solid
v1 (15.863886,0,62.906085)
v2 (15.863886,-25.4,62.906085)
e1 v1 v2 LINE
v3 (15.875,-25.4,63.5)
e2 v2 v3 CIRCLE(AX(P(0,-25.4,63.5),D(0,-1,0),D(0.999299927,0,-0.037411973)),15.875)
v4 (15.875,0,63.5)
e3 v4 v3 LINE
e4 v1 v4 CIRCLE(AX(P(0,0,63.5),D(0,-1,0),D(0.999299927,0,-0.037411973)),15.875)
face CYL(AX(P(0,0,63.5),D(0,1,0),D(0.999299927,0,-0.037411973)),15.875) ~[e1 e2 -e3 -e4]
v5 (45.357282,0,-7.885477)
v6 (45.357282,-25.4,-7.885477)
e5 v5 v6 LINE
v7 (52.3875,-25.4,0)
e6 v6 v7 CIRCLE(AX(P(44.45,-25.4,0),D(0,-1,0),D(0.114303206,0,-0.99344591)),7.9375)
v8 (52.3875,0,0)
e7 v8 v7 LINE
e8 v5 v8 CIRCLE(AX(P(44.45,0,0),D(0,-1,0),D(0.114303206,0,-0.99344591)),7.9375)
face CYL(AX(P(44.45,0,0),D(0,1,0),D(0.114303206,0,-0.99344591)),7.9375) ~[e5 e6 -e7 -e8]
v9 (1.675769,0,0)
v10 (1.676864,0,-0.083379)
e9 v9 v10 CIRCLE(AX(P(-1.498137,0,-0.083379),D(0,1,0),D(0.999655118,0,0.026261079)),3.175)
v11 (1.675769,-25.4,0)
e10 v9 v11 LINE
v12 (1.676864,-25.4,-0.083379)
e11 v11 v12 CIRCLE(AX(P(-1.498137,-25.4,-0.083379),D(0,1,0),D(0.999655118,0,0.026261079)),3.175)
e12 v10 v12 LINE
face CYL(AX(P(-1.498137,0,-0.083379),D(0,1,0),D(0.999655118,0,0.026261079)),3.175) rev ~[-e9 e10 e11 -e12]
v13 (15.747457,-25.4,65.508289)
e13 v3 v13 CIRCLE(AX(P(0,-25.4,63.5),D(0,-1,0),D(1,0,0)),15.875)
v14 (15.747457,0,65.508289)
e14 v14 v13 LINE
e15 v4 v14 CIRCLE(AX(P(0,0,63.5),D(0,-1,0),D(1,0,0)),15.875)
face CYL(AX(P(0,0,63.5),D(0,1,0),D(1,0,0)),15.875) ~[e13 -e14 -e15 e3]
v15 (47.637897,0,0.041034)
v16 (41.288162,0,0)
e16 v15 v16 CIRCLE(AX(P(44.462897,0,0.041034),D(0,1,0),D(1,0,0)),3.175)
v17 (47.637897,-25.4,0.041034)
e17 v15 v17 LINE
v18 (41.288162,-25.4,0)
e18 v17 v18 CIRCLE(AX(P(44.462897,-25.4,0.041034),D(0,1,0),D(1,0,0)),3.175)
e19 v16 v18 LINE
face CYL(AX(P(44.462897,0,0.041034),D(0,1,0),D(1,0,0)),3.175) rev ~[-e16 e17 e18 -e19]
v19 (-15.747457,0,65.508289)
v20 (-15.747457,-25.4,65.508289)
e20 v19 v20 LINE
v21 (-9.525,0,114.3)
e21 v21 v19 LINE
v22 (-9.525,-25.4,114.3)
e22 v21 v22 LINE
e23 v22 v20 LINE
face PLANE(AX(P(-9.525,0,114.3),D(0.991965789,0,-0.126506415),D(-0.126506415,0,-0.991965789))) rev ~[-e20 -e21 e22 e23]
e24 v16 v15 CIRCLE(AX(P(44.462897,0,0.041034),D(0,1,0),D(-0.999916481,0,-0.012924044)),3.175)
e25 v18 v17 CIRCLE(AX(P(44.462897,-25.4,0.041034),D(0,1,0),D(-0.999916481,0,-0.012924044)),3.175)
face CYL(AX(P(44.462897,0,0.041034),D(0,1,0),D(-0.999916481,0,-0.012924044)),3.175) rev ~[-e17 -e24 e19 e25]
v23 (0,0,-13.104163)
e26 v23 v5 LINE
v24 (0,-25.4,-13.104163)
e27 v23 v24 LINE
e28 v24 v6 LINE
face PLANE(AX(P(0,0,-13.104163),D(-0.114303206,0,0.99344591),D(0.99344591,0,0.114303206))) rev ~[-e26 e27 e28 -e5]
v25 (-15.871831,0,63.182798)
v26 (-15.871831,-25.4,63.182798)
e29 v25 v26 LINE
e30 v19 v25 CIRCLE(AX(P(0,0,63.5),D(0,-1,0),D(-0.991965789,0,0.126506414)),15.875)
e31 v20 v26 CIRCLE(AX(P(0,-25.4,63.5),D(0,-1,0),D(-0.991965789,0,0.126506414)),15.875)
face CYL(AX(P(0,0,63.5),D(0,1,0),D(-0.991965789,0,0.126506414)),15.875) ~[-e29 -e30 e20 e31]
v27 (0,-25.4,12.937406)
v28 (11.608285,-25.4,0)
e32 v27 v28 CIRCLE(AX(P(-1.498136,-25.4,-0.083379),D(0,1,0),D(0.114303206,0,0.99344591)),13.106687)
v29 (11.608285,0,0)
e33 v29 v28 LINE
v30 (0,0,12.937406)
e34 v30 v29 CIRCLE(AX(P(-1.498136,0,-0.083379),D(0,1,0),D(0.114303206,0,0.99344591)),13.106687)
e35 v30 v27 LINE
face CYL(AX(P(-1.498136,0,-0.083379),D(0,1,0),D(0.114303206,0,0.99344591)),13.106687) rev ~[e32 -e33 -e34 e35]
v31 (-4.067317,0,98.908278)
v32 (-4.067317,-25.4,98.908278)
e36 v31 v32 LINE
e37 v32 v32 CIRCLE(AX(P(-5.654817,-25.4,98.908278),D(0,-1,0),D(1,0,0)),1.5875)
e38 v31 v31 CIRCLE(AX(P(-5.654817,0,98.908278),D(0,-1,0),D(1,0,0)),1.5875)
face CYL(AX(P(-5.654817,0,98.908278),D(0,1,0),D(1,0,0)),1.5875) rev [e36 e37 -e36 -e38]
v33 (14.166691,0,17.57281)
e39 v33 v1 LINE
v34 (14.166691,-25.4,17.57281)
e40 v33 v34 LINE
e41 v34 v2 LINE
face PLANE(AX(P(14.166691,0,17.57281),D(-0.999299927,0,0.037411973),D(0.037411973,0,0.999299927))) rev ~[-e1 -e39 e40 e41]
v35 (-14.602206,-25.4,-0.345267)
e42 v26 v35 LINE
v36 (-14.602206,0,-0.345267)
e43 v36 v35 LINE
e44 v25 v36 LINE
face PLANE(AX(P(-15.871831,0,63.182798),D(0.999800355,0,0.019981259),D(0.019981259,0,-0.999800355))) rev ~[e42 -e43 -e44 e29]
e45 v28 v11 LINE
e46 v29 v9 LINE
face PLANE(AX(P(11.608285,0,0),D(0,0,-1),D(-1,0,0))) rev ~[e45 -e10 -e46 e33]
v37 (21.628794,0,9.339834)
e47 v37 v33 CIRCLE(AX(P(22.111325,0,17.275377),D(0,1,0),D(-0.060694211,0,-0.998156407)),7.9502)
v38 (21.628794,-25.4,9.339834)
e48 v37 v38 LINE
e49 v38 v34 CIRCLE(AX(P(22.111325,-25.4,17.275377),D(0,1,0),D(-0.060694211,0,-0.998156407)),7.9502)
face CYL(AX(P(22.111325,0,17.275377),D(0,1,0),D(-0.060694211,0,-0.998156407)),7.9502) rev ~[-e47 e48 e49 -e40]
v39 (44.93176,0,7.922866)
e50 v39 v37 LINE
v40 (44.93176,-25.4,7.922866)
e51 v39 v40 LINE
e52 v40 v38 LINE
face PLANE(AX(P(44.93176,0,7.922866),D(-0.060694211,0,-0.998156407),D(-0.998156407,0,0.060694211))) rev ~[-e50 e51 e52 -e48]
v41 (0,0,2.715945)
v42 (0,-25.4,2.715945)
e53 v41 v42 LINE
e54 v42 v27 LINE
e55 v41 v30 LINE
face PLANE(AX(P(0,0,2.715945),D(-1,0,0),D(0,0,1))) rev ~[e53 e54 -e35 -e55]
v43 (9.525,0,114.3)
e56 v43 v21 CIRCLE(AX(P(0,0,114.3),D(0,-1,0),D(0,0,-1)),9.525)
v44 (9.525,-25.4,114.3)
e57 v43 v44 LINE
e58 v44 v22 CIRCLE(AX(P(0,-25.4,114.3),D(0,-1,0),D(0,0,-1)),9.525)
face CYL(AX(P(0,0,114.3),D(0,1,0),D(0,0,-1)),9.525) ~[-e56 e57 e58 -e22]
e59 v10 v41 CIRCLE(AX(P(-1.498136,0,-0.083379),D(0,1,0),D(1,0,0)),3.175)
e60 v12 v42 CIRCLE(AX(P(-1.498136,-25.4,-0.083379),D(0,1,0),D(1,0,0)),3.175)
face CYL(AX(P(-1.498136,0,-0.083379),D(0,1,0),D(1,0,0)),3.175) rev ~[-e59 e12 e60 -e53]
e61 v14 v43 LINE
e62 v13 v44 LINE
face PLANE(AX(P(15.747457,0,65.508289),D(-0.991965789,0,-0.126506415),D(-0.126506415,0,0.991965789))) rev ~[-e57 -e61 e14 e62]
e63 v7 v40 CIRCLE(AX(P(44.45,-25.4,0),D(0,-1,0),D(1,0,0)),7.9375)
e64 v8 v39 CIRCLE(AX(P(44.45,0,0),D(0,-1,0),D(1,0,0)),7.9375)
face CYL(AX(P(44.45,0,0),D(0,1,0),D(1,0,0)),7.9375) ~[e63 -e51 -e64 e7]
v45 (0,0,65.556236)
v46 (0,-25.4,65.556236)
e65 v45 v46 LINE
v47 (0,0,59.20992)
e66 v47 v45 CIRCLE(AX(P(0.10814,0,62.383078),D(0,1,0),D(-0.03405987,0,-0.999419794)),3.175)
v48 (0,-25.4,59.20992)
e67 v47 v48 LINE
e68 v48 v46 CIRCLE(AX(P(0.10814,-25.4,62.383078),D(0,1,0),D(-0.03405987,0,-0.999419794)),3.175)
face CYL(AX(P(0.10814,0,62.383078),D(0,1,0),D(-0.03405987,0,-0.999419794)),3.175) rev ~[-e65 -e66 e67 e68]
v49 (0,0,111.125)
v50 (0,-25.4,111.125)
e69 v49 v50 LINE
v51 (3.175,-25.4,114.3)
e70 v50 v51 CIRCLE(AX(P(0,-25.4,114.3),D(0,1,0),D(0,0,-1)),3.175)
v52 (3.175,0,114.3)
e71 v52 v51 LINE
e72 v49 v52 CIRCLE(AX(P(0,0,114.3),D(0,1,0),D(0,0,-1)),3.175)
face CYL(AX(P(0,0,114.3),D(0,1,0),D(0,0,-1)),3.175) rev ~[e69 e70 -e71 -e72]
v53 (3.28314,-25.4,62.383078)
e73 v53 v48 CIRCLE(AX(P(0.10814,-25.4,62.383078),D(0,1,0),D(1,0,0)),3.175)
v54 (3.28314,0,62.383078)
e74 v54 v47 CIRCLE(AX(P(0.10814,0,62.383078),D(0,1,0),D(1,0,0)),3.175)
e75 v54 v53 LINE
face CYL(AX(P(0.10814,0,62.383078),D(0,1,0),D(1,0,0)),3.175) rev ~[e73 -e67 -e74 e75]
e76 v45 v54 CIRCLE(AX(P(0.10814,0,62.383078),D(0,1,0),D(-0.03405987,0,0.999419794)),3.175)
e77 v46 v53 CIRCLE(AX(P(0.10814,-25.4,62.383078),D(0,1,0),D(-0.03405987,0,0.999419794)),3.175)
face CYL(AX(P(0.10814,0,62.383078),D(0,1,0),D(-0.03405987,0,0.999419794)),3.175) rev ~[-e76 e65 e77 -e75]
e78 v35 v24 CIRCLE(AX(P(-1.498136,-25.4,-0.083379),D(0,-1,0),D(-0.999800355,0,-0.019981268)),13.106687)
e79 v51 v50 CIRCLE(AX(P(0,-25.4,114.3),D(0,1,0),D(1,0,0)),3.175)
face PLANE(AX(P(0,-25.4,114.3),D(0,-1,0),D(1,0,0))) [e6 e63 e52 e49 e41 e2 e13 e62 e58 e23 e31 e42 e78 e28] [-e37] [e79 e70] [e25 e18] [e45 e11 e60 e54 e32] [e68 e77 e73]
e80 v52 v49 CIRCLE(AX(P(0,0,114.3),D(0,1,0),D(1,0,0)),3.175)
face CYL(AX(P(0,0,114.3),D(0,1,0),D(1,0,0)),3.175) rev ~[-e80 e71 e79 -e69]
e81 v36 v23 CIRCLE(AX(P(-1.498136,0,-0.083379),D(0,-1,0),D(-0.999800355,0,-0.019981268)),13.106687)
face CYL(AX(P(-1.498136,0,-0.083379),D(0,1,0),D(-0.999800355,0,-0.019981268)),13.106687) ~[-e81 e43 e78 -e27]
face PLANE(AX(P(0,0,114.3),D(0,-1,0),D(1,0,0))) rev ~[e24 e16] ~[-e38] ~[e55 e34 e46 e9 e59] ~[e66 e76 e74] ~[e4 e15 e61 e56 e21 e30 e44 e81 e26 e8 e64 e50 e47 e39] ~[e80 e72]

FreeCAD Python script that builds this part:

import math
import FreeCAD as App
import Part
import Sketcher
Q = App.Units.Quantity

doc = App.newDocument("Part")
body = doc.addObject("PartDesign::Body", "Body")

# Sketch on XZ plane
sketch1 = body.newObject("Sketcher::SketchObject", "Sketch")
sketch1.AttachmentSupport = (doc.getObject("XZ_Plane"), [""])
sketch1.MapMode = "FlatFace"
sketch1.addGeometry([
    Part.ArcOfCircle(Part.Circle(App.Vector(-1.5, -0.08, 0), App.Vector(0, 0, 1), 13.11), math.radians(-179), math.radians(-83)),  # 0
    Part.LineSegment(App.Vector(0, -13.1, 0), App.Vector(45.36, -7.89, 0)),  # 1
    Part.ArcOfCircle(Part.Circle(App.Vector(44.45, 0, 0), App.Vector(0, 0, 1), 7.94), math.radians(-83), math.radians(0)),  # 2
    Part.ArcOfCircle(Part.Circle(App.Vector(44.45, 0, 0), App.Vector(0, 0, 1), 7.94), math.radians(0), math.radians(87)),  # 3
    Part.LineSegment(App.Vector(44.93, 7.92, 0), App.Vector(21.63, 9.34, 0)),  # 4
    Part.ArcOfCircle(Part.Circle(App.Vector(22.11, 17.28, 0), App.Vector(0, 0, 1), 7.95), math.radians(178), math.radians(267)),  # 5
    Part.LineSegment(App.Vector(14.17, 17.57, 0), App.Vector(15.86, 62.91, 0)),  # 6
    Part.ArcOfCircle(Part.Circle(App.Vector(0, 63.5, 0), App.Vector(0, 0, 1), 15.87), math.radians(-2.14), math.radians(0)),  # 7
    Part.ArcOfCircle(Part.Circle(App.Vector(0, 63.5, 0), App.Vector(0, 0, 1), 15.87), math.radians(0), math.radians(7.27)),  # 8
    Part.LineSegment(App.Vector(15.75, 65.51, 0), App.Vector(9.53, 114.3, 0)),  # 9
    Part.ArcOfCircle(Part.Circle(App.Vector(0, 114.3, 0), App.Vector(0, 0, 1), 9.53), math.radians(0), math.radians(180)),  # 10
    Part.LineSegment(App.Vector(-9.53, 114.3, 0), App.Vector(-15.75, 65.51, 0)),  # 11
    Part.ArcOfCircle(Part.Circle(App.Vector(0, 63.5, 0), App.Vector(0, 0, 1), 15.88), math.radians(172.73), math.radians(181.14)),  # 12
    Part.LineSegment(App.Vector(-15.87, 63.18, 0), App.Vector(-14.6, -0.35, 0)),  # 13
    Part.ArcOfCircle(Part.Circle(App.Vector(-1.5, -0.08, 0), App.Vector(0, 0, 1), 13.11), math.radians(0), math.radians(83)),  # 14
    Part.LineSegment(App.Vector(11.61, 0, 0), App.Vector(1.68, 0, 0)),  # 15
    Part.ArcOfCircle(Part.Circle(App.Vector(-1.5, -0.08, 0), App.Vector(0, 0, 1), 3.18), math.radians(0), math.radians(1.5)),  # 16
    Part.ArcOfCircle(Part.Circle(App.Vector(-1.5, -0.08, 0), App.Vector(0, 0, 1), 3.17), math.radians(62), math.radians(360)),  # 17
    Part.LineSegment(App.Vector(0, 2.72, 0), App.Vector(0, 12.94, 0)),  # 18
    Part.ArcOfCircle(Part.Circle(App.Vector(44.46, 0.04, 0), App.Vector(0, 0, 1), 3.17), math.radians(0), math.radians(181)),  # 19
    Part.ArcOfCircle(Part.Circle(App.Vector(44.46, 0.04, 0), App.Vector(0, 0, 1), 3.17), math.radians(-179), math.radians(0)),  # 20
    Part.ArcOfCircle(Part.Circle(App.Vector(0.11, 62.38, 0), App.Vector(0, 0, 1), 3.17), math.radians(0), math.radians(92)),  # 21
    Part.ArcOfCircle(Part.Circle(App.Vector(0.11, 62.38, 0), App.Vector(0, 0, 1), 3.17), math.radians(-92), math.radians(0)),  # 22
    Part.ArcOfCircle(Part.Circle(App.Vector(0.11, 62.38, 0), App.Vector(0, 0, 1), 3.17), math.radians(92), math.radians(268)),  # 23
    Part.Circle(App.Vector(-5.65, 98.91, 0), App.Vector(0, 0, 1), 1.59),  # 24
    Part.ArcOfCircle(Part.Circle(App.Vector(0, 114.3, 0), App.Vector(0, 0, 1), 3.17), math.radians(0), math.radians(270)),  # 25
    Part.ArcOfCircle(Part.Circle(App.Vector(0, 114.3, 0), App.Vector(0, 0, 1), 3.17), math.radians(-90), math.radians(0)),  # 26
], False)
sketch1.addConstraint([
    Sketcher.Constraint("Tangent", 0, 2, 1, 1),
    Sketcher.Constraint("Tangent", 1, 2, 2, 1),
    Sketcher.Constraint("Tangent", 2, 2, 3, 1),
    Sketcher.Constraint("Tangent", 3, 2, 4, 1),
    Sketcher.Constraint("Tangent", 4, 2, 5, 2),
    Sketcher.Constraint("Tangent", 5, 1, 6, 1),
    Sketcher.Constraint("Tangent", 6, 2, 7, 1),
    Sketcher.Constraint("Tangent", 7, 2, 8, 1),
    Sketcher.Constraint("Tangent", 8, 2, 9, 1),
    Sketcher.Constraint("Coincident", 9, 2, 10, 1),
    Sketcher.Constraint("Coincident", 10, 2, 11, 1),
    Sketcher.Constraint("Tangent", 11, 2, 12, 1),
    Sketcher.Constraint("Tangent", 12, 2, 13, 1),
    Sketcher.Constraint("Tangent", 13, 2, 0, 1),
    Sketcher.Constraint("Coincident", 14, 1, 15, 1),
    Sketcher.Constraint("Coincident", 15, 2, 16, 2),
    Sketcher.Constraint("Tangent", 16, 1, 17, 2),
    Sketcher.Constraint("Coincident", 17, 1, 18, 1),
    Sketcher.Constraint("Coincident", 18, 2, 14, 2),
    Sketcher.Constraint("Tangent", 19, 1, 20, 2),
    Sketcher.Constraint("Coincident", 20, 1, 19, 2),
    Sketcher.Constraint("Tangent", 21, 1, 22, 2),
    Sketcher.Constraint("Tangent", 22, 1, 23, 2),
    Sketcher.Constraint("Tangent", 23, 1, 21, 2),
    Sketcher.Constraint("Tangent", 25, 1, 26, 2),
    Sketcher.Constraint("Coincident", 26, 1, 25, 2),
    Sketcher.Constraint("Horizontal", 15),
    Sketcher.Constraint("Vertical", 18),
    Sketcher.Constraint("Coincident", 12, 3, 7, 3),
    Sketcher.Constraint("Coincident", 14, 3, 0, 3),
    Sketcher.Constraint("Coincident", 16, 3, 0, 3),
    Sketcher.Constraint("Coincident", 25, 3, 10, 3),
    Sketcher.Constraint("Equal", 2, 3),
    Sketcher.Constraint("Equal", 7, 8),
    Sketcher.Constraint("Equal", 8, 12),
    Sketcher.Constraint("Equal", 0, 14),
    Sketcher.Constraint("Equal", 16, 17),
    Sketcher.Constraint("Equal", 17, 19),
    Sketcher.Constraint("Equal", 20, 21),
    Sketcher.Constraint("Equal", 23, 25),
    Sketcher.Constraint("Symmetric", 9, 2, 10, 2, -2),
    Sketcher.Constraint("PointOnObject", 2, 3, -1),
    Sketcher.Constraint("PointOnObject", 7, 3, -2),
    Sketcher.Constraint("PointOnObject", 0, 2, -2),
    Sketcher.Constraint("PointOnObject", 2, 2, -1),
    Sketcher.Constraint("PointOnObject", 14, 1, -1),
    Sketcher.Constraint("PointOnObject", 17, 1, -2),
    Sketcher.Constraint("PointOnObject", 20, 1, -1),
    Sketcher.Constraint("PointOnObject", 22, 1, -2),
    Sketcher.Constraint("PointOnObject", 23, 1, -2),
    Sketcher.Constraint("PointOnObject", 26, 1, -2),
    Sketcher.Constraint("Horizontal", 12, 3, 7, 2),
    Sketcher.Constraint("Horizontal", 26, 3, 9, 2),
    Sketcher.Constraint("Horizontal", 17, 3, 16, 1),
    Sketcher.Constraint("Horizontal", 20, 3, 19, 1),
    Sketcher.Constraint("Horizontal", 23, 3, 21, 1),
    Sketcher.Constraint("Horizontal", 10, 2, 25, 1),
    Sketcher.Constraint("Diameter", 24, Q("0.125 in")),
    Sketcher.Constraint("Radius", 2, Q("0.3125 in")),
    Sketcher.Constraint("Radius", 5, Q("0.313 in")),
    Sketcher.Constraint("Radius", 7, Q("0.625 in")),
    Sketcher.Constraint("Radius", 10, Q("0.375 in")),
    Sketcher.Constraint("Radius", 16, Q("0.125 in")),
    Sketcher.Constraint("DistanceY", 8, 3, 10, 3, Q("2 in")),
    Sketcher.Constraint("DistanceY", -1, 1, 7, 3, Q("2.5 in")),
    Sketcher.Constraint("DistanceX", -1, 1, 2, 3, Q("1.75 in")),
    Sketcher.Constraint("DistanceY", 21, 3, 24, 3, Q("1.438 in")),
    Sketcher.Constraint("Radius", 0, 13.106687),
    Sketcher.Constraint("DistanceY", 18, 1, 18, 2, 10.221461),
    Sketcher.Constraint("DistanceY", 5, 3, 21, 3, 45.107701),
    Sketcher.Constraint("DistanceY", 19, 3, 4, 2, 9.2988),
    Sketcher.Constraint("DistanceX", -1, 1, 21, 3, 0.10814),
    Sketcher.Constraint("DistanceY", -1, 1, 21, 3, 62.383078),
    Sketcher.Constraint("DistanceX", -1, 1, 5, 1, 14.166691),
    Sketcher.Constraint("DistanceX", 5, 3, 19, 3, 22.351572),
    Sketcher.Constraint("DistanceX", 24, 3, -1, 1, 5.654817),
])
pad1 = body.newObject("PartDesign::Pad", "Pad")
pad1.Profile = sketch1
pad1.Length = Q("1 in")

doc.recompute()
